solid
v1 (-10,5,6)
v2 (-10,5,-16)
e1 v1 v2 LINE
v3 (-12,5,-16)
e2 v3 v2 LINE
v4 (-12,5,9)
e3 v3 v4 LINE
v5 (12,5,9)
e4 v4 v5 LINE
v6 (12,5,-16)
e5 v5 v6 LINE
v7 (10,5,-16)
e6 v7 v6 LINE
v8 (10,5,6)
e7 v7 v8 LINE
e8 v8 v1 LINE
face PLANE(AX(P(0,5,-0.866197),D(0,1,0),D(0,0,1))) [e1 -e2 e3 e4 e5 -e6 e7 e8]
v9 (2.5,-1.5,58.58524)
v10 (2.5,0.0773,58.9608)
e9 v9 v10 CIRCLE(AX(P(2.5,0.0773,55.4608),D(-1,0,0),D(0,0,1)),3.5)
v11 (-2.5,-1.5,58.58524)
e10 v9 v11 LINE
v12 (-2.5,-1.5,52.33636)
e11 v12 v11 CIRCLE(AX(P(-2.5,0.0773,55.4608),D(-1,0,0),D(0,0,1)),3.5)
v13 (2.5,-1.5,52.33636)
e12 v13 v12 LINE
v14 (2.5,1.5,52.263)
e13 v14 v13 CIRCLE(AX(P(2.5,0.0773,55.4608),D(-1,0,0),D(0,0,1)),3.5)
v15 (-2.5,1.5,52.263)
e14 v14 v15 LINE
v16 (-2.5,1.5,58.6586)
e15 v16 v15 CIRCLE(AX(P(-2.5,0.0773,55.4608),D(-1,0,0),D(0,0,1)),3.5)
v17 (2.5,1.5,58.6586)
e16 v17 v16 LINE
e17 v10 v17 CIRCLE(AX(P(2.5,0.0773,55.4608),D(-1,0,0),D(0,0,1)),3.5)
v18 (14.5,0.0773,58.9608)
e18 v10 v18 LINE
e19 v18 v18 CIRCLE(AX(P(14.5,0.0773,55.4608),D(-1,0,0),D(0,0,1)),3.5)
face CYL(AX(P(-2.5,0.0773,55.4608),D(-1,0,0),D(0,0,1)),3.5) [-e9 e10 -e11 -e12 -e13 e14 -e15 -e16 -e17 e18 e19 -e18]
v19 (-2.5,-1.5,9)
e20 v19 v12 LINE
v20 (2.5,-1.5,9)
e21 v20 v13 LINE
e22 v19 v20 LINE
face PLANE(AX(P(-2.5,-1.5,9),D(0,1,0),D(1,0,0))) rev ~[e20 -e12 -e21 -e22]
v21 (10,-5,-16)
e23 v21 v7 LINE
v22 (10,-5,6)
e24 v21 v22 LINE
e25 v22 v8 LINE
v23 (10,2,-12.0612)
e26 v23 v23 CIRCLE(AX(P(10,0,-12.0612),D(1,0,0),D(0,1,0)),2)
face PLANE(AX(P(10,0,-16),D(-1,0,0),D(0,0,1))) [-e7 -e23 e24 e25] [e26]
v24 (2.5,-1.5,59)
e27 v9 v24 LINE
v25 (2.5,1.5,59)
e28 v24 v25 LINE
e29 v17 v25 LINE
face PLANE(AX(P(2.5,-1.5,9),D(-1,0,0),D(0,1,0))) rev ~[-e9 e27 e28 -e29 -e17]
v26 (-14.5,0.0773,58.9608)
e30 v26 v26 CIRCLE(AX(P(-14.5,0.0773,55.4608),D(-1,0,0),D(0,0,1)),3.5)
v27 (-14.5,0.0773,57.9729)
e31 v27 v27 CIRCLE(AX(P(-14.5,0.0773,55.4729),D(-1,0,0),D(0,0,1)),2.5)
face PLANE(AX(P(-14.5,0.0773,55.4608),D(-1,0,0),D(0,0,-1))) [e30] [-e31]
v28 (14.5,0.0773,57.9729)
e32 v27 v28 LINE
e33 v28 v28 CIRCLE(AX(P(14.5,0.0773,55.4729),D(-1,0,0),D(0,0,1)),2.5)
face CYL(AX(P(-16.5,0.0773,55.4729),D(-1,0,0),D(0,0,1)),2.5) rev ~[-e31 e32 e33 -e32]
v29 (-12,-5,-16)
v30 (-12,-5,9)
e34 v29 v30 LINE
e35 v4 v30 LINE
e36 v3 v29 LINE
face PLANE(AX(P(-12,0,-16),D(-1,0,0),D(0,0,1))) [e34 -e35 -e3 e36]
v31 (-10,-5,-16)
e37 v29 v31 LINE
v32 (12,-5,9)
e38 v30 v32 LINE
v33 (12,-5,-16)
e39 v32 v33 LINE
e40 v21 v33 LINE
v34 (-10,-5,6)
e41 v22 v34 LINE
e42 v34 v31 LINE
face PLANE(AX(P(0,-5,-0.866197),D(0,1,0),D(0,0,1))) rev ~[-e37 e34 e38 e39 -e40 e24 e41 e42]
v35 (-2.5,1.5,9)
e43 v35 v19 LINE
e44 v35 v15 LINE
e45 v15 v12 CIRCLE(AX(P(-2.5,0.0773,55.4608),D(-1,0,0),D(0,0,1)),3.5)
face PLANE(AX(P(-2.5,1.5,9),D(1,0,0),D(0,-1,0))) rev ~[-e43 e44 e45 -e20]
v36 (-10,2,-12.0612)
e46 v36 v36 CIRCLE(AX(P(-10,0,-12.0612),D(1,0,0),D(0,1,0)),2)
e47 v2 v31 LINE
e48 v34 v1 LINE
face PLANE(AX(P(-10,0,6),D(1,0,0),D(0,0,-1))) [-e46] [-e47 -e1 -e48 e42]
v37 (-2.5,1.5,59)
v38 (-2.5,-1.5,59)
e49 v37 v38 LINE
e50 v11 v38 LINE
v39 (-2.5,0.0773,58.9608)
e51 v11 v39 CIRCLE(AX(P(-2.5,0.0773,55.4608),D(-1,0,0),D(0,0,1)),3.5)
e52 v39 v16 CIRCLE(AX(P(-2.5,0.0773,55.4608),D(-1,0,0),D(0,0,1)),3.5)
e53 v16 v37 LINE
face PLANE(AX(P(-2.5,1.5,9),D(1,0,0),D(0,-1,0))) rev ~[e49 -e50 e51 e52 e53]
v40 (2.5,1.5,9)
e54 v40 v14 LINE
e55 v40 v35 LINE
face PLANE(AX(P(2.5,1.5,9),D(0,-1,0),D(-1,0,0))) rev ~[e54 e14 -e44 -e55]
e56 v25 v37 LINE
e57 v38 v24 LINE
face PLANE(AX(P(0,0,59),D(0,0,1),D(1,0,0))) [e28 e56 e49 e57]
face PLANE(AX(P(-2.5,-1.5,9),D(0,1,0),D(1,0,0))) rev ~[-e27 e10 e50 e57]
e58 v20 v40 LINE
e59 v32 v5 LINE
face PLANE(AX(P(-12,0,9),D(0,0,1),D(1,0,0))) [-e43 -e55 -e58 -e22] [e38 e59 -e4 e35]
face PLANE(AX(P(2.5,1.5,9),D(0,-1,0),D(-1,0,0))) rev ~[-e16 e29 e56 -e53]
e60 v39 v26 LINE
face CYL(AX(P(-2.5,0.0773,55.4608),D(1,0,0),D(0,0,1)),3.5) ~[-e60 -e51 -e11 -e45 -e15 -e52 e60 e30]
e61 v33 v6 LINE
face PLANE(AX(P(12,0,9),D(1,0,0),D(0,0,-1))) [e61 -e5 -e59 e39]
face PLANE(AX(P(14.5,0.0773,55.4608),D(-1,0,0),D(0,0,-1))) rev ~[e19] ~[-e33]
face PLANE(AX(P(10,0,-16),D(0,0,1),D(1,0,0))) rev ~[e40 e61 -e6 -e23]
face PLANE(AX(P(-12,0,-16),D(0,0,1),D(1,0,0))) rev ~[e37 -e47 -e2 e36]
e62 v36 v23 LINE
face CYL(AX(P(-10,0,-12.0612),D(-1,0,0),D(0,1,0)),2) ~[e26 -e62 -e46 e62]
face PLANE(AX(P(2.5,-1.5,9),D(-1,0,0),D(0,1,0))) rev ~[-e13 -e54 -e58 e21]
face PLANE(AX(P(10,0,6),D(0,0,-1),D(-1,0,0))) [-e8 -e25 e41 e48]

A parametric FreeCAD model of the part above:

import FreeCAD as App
import Part
import Sketcher

doc = App.newDocument("Part")
body = doc.addObject("PartDesign::Body", "Body")

# Sketch on XZ plane
sketch1 = body.newObject("Sketcher::SketchObject", "Sketch")
sketch1.AttachmentSupport = (doc.getObject("XZ_Plane"), [""])
sketch1.MapMode = "FlatFace"
sketch1.addGeometry([
    Part.LineSegment(App.Vector(12, 9, 0), App.Vector(-12, 9, 0)),  # 0
    Part.LineSegment(App.Vector(-12, 9, 0), App.Vector(-12, -16, 0)),  # 1
    Part.LineSegment(App.Vector(-12, -16, 0), App.Vector(-10, -16, 0)),  # 2
    Part.LineSegment(App.Vector(-10, -16, 0), App.Vector(-10, 6, 0)),  # 3
    Part.LineSegment(App.Vector(-10, 6, 0), App.Vector(10, 6, 0)),  # 4
    Part.LineSegment(App.Vector(10, 6, 0), App.Vector(10, -16, 0)),  # 5
    Part.LineSegment(App.Vector(10, -16, 0), App.Vector(12, -16, 0)),  # 6
    Part.LineSegment(App.Vector(12, -16, 0), App.Vector(12, 9, 0)),  # 7
], False)
sketch1.addConstraint([
    Sketcher.Constraint("Coincident", 0, 2, 1, 1),
    Sketcher.Constraint("Coincident", 1, 2, 2, 1),
    Sketcher.Constraint("Coincident", 2, 2, 3, 1),
    Sketcher.Constraint("Coincident", 3, 2, 4, 1),
    Sketcher.Constraint("Coincident", 4, 2, 5, 1),
    Sketcher.Constraint("Coincident", 5, 2, 6, 1),
    Sketcher.Constraint("Coincident", 6, 2, 7, 1),
    Sketcher.Constraint("Coincident", 7, 2, 0, 1),
    Sketcher.Constraint("Horizontal", 0),
    Sketcher.Constraint("Vertical", 1),
    Sketcher.Constraint("Horizontal", 2),
    Sketcher.Constraint("Vertical", 3),
    Sketcher.Constraint("Horizontal", 4),
    Sketcher.Constraint("Vertical", 5),
    Sketcher.Constraint("Horizontal", 6),
    Sketcher.Constraint("Vertical", 7),
    Sketcher.Constraint("Symmetric", 2, 2, 5, 2, -2),
    Sketcher.Constraint("Equal", 2, 6),
    Sketcher.Constraint("DistanceX", 0, 2, 0, 1, 24.0),
    Sketcher.Constraint("DistanceX", 2, 1, 2, 2, 2.0),
    Sketcher.Constraint("DistanceY", 1, 2, 1, 1, 25.0),
    Sketcher.Constraint("DistanceY", 3, 1, 3, 2, 22.0),
    Sketcher.Constraint("DistanceY", -1, 1, 0, 2, 9.0),
])
pad1 = body.newObject("PartDesign::Pad", "Pad")
pad1.Profile = sketch1
pad1.Length = 10
pad1.Midplane = True

# Sketch on YZ plane
sketch2 = body.newObject("Sketcher::SketchObject", "Sketch001")
sketch2.AttachmentSupport = (doc.getObject("YZ_Plane"), [""])
sketch2.MapMode = "FlatFace"
sketch2.AttachmentOffset = App.Placement(App.Vector(0, 0, -10), App.Rotation())
sketch2.addGeometry(Part.Circle(App.Vector(0, -12.0612, 0), App.Vector(0, 0, 1), 2), False)
sketch2.addConstraint([
    Sketcher.Constraint("PointOnObject", 0, 3, -2),
    Sketcher.Constraint("Diameter", 0, 4.0),
    Sketcher.Constraint("DistanceY", 0, 3, -1, 1, 12.0612),
])
pad2 = body.newObject("PartDesign::Pad", "Pad001")
pad2.Profile = sketch2
pad2.Length = 20

# Sketch on XY plane
sketch3 = body.newObject("Sketcher::SketchObject", "Sketch002")
sketch3.AttachmentSupport = (doc.getObject("XY_Plane"), [""])
sketch3.MapMode = "FlatFace"
sketch3.AttachmentOffset = App.Placement(App.Vector(0, 0, 9), App.Rotation())
sketch3.addGeometry([
    Part.LineSegment(App.Vector(-2.5, -1.5, 0), App.Vector(2.5, -1.5, 0)),
    Part.LineSegment(App.Vector(2.5, -1.5, 0), App.Vector(2.5, 1.5, 0)),
    Part.LineSegment(App.Vector(2.5, 1.5, 0), App.Vector(-2.5, 1.5, 0)),
    Part.LineSegment(App.Vector(-2.5, 1.5, 0), App.Vector(-2.5, -1.5, 0)),
], False)
sketch3.addConstraint([
    Sketcher.Constraint("Coincident", 0, 2, 1, 1),
    Sketcher.Constraint("Coincident", 1, 2, 2, 1),
    Sketcher.Constraint("Coincident", 2, 2, 3, 1),
    Sketcher.Constraint("Coincident", 3, 2, 0, 1),
    Sketcher.Constraint("Horizontal", 0),
    Sketcher.Constraint("Vertical", 1),
    Sketcher.Constraint("Horizontal", 2),
    Sketcher.Constraint("Vertical", 3),
    Sketcher.Constraint("Symmetric", 0, 2, 2, 2, -1, 1),
    Sketcher.Constraint("DistanceX", 0, 1, 0, 2, 5.0),
    Sketcher.Constraint("DistanceY", 1, 1, 1, 2, 3.0),
])
pad3 = body.newObject("PartDesign::Pad", "Pad002")
pad3.Profile = sketch3
pad3.Length = 50

# Sketch on YZ plane
sketch4 = body.newObject("Sketcher::SketchObject", "Sketch003")
sketch4.AttachmentSupport = (doc.getObject("YZ_Plane"), [""])
sketch4.MapMode = "FlatFace"
sketch4.AttachmentOffset = App.Placement(App.Vector(0, 0, -2.5), App.Rotation())
sketch4.addGeometry(Part.Circle(App.Vector(0.0773, 55.4608, 0), App.Vector(0, 0, 1), 3.5), False)
sketch4.addConstraint([
    Sketcher.Constraint("Diameter", 0, 7.0),
    Sketcher.Constraint("DistanceX", -1, 1, 0, 3, 0.0773),
    Sketcher.Constraint("DistanceY", -1, 1, 0, 3, 55.4608),
])
pad4 = body.newObject("PartDesign::Pad", "Pad003")
pad4.Profile = sketch4
pad4.Type = "TwoLengths"
pad4.Length = 12
pad4.Length2 = 17
pad4.Reversed = True

# Sketch on YZ plane
sketch5 = body.newObject("Sketcher::SketchObject", "Sketch004")
sketch5.AttachmentSupport = (doc.getObject("YZ_Plane"), [""])
sketch5.MapMode = "FlatFace"
sketch5.AttachmentOffset = App.Placement(App.Vector(0, 0, -16.5), App.Rotation())
sketch5.addGeometry(Part.Circle(App.Vector(0.0773, 55.4729, 0), App.Vector(0, 0, 1), 2.5), False)
sketch5.addConstraint([
    Sketcher.Constraint("Diameter", 0, 5.0),
    Sketcher.Constraint("DistanceY", -1, 1, 0, 3, 55.473),
    Sketcher.Constraint("DistanceX", -1, 1, 0, 3, 0.0773),
])
pocket1 = body.newObject("PartDesign::Pocket", "Pocket")
pocket1.Profile = sketch5
pocket1.Length = 62.1313
pocket1.Reversed = True

doc.recompute()
